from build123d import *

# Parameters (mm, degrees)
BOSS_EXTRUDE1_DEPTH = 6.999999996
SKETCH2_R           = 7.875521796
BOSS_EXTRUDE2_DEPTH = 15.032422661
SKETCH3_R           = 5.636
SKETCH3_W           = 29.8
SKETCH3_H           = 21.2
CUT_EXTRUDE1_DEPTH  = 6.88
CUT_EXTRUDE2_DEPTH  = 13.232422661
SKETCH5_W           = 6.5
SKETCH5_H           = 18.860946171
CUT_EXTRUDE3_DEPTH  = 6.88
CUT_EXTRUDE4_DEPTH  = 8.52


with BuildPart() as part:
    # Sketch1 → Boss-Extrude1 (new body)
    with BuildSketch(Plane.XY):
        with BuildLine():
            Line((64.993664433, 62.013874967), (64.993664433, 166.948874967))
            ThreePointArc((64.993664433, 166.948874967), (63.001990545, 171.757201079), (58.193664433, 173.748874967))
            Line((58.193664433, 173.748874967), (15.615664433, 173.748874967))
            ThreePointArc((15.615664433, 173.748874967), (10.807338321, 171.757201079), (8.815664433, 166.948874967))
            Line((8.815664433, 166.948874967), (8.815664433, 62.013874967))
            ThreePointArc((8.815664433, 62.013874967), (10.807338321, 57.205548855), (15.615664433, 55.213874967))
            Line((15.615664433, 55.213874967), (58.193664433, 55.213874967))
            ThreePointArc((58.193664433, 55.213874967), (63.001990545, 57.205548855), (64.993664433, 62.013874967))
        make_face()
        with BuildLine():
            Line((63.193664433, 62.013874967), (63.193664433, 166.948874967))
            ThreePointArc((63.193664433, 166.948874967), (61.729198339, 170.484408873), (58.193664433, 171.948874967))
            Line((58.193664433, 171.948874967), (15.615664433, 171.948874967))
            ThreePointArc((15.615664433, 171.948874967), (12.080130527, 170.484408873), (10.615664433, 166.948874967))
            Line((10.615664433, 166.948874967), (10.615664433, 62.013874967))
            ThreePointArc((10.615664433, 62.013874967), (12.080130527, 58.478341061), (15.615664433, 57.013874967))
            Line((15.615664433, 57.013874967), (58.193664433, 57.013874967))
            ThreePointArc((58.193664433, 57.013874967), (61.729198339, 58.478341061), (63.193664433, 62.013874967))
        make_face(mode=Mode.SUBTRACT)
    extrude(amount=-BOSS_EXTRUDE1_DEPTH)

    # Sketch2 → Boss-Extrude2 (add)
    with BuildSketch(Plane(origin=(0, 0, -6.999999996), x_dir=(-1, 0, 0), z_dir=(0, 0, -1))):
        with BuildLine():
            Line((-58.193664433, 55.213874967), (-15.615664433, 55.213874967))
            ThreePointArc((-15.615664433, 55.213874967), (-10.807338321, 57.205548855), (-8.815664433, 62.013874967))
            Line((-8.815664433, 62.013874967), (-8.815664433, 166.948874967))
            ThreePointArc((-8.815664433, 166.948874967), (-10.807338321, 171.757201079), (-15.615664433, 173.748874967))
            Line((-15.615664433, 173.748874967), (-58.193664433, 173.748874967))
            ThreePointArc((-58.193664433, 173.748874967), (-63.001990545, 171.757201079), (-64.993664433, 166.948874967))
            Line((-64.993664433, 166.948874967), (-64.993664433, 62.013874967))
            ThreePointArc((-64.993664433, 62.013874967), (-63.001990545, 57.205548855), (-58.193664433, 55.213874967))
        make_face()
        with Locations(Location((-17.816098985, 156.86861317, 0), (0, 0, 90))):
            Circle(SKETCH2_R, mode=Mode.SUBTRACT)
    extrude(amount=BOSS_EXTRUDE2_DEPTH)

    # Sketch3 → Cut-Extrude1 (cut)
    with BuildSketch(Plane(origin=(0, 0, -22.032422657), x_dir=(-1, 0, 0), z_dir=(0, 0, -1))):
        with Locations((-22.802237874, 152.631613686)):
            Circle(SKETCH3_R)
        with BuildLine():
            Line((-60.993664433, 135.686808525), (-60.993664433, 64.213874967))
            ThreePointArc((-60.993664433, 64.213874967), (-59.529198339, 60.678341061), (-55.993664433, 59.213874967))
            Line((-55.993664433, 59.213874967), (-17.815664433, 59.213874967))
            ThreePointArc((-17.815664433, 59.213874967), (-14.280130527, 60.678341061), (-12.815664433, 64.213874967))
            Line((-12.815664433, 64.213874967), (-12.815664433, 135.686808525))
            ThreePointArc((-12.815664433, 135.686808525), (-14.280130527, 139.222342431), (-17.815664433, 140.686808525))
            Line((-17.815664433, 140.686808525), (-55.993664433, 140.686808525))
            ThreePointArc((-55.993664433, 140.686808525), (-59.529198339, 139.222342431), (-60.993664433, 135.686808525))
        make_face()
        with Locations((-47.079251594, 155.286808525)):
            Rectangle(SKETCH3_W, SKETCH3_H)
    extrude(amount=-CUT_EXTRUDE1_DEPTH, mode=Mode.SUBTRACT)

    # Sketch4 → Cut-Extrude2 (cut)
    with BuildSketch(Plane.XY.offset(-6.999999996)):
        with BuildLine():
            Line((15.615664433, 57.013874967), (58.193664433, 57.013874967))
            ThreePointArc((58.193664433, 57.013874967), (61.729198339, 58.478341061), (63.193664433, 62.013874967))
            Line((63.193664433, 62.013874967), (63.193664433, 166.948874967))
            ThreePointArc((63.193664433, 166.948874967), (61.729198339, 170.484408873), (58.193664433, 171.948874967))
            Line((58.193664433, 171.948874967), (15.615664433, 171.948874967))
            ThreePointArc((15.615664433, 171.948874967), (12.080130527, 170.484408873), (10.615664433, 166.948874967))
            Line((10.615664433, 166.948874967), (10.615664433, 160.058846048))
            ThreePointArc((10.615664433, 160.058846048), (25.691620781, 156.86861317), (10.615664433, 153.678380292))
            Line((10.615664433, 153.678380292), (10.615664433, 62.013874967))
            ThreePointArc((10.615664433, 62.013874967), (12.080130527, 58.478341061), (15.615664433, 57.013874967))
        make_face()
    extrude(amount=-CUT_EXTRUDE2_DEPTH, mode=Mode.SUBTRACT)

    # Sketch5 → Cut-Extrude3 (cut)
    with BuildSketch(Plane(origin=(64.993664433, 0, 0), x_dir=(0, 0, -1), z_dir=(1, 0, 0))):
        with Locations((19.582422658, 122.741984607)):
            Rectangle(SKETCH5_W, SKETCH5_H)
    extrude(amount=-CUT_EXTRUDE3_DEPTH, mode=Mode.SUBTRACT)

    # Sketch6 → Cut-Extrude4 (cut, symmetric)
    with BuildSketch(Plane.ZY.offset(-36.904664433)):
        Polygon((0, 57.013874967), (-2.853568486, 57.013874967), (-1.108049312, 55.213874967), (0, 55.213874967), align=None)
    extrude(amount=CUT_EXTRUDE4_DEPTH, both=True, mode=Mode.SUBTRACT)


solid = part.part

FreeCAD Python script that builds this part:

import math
import FreeCAD as App
import Part
import Sketcher
from FreeCAD import Vector
Q = App.Units.Quantity


def add_polygon(sketch, points):
    """Adds a closed chain of lines whose ends are joined by coincident constraints."""
    first, n = sketch.GeometryCount, len(points)
    for a, b in zip(points, points[1:] + points[:1]):
        sketch.addGeometry(Part.LineSegment(App.Vector(*a, 0), App.Vector(*b, 0)), False)
    for i in range(n):
        sketch.addConstraint(Sketcher.Constraint("Coincident", first + i, 2, first + (i + 1) % n, 1))

doc = App.newDocument("Part")
body = doc.addObject("PartDesign::Body", "Body")

sketch1 = body.newObject("Sketcher::SketchObject", "Sketch")
sketch1.AttachmentSupport = (doc.getObject("XY_Plane"), [""])
sketch1.MapMode = "FlatFace"
sketch1.addGeometry(Part.LineSegment(Vector(65, 62, 0), Vector(65, 167, 0)), False)
sketch1.addGeometry(Part.ArcOfCircle(Part.Circle(Vector(58, 167, 0), Vector(0, 0, 1), 7), math.radians(0), math.radians(90)), False)
sketch1.addGeometry(Part.LineSegment(Vector(58, 174, 0), Vector(16, 174, 0)), False)
sketch1.addGeometry(Part.ArcOfCircle(Part.Circle(Vector(16, 167, 0), Vector(0, 0, 1), 7), math.radians(90), math.radians(180)), False)
sketch1.addGeometry(Part.LineSegment(Vector(9, 167, 0), Vector(9, 62, 0)), False)
sketch1.addGeometry(Part.ArcOfCircle(Part.Circle(Vector(16, 62, 0), Vector(0, 0, 1), 7), math.radians(180), math.radians(270)), False)
sketch1.addGeometry(Part.LineSegment(Vector(16, 55, 0), Vector(58, 55, 0)), False)
sketch1.addGeometry(Part.ArcOfCircle(Part.Circle(Vector(58, 62, 0), Vector(0, 0, 1), 7), math.radians(-90), math.radians(0)), False)
sketch1.addGeometry(Part.LineSegment(Vector(63, 167, 0), Vector(63, 62, 0)), False)
sketch1.addGeometry(Part.ArcOfCircle(Part.Circle(Vector(58, 62, 0), Vector(0, 0, 1), 5), math.radians(-90), math.radians(0)), False)
sketch1.addGeometry(Part.LineSegment(Vector(58, 57, 0), Vector(16, 57, 0)), False)
sketch1.addGeometry(Part.ArcOfCircle(Part.Circle(Vector(16, 62, 0), Vector(0, 0, 1), 5), math.radians(180), math.radians(270)), False)
sketch1.addGeometry(Part.LineSegment(Vector(11, 62, 0), Vector(11, 167, 0)), False)
sketch1.addGeometry(Part.ArcOfCircle(Part.Circle(Vector(16, 167, 0), Vector(0, 0, 1), 5), math.radians(90), math.radians(180)), False)
sketch1.addGeometry(Part.LineSegment(Vector(16, 172, 0), Vector(58, 172, 0)), False)
sketch1.addGeometry(Part.ArcOfCircle(Part.Circle(Vector(58, 167, 0), Vector(0, 0, 1), 5), math.radians(0), math.radians(90)), False)
sketch1.addConstraint(Sketcher.Constraint("Tangent", 0, 2, 1, 1))
sketch1.addConstraint(Sketcher.Constraint("Tangent", 1, 2, 2, 1))
sketch1.addConstraint(Sketcher.Constraint("Tangent", 2, 2, 3, 1))
sketch1.addConstraint(Sketcher.Constraint("Tangent", 3, 2, 4, 1))
sketch1.addConstraint(Sketcher.Constraint("Tangent", 4, 2, 5, 1))
sketch1.addConstraint(Sketcher.Constraint("Tangent", 5, 2, 6, 1))
sketch1.addConstraint(Sketcher.Constraint("Tangent", 6, 2, 7, 1))
sketch1.addConstraint(Sketcher.Constraint("Tangent", 7, 2, 0, 1))
sketch1.addConstraint(Sketcher.Constraint("Tangent", 8, 2, 9, 2))
sketch1.addConstraint(Sketcher.Constraint("Tangent", 9, 1, 10, 1))
sketch1.addConstraint(Sketcher.Constraint("Tangent", 10, 2, 11, 2))
sketch1.addConstraint(Sketcher.Constraint("Tangent", 11, 1, 12, 1))
sketch1.addConstraint(Sketcher.Constraint("Tangent", 12, 2, 13, 2))
sketch1.addConstraint(Sketcher.Constraint("Tangent", 13, 1, 14, 1))
sketch1.addConstraint(Sketcher.Constraint("Tangent", 14, 2, 15, 2))
sketch1.addConstraint(Sketcher.Constraint("Tangent", 15, 1, 8, 1))
sketch1.addConstraint(Sketcher.Constraint("Vertical", 0))
sketch1.addConstraint(Sketcher.Constraint("Horizontal", 2))
sketch1.addConstraint(Sketcher.Constraint("Vertical", 4))
sketch1.addConstraint(Sketcher.Constraint("Horizontal", 6))
sketch1.addConstraint(Sketcher.Constraint("Vertical", 8))
sketch1.addConstraint(Sketcher.Constraint("Horizontal", 10))
sketch1.addConstraint(Sketcher.Constraint("Vertical", 12))
sketch1.addConstraint(Sketcher.Constraint("Horizontal", 14))
sketch1.addConstraint(Sketcher.Constraint("Coincident", 9, 3, 7, 3))
sketch1.addConstraint(Sketcher.Constraint("Coincident", 11, 3, 5, 3))
sketch1.addConstraint(Sketcher.Constraint("Coincident", 13, 3, 3, 3))
sketch1.addConstraint(Sketcher.Constraint("Equal", 1, 3))
sketch1.addConstraint(Sketcher.Constraint("Equal", 3, 5))
sketch1.addConstraint(Sketcher.Constraint("Equal", 5, 7))
sketch1.addConstraint(Sketcher.Constraint("Equal", 13, 15))
sketch1.addConstraint(Sketcher.Constraint("Radius", 9, Q("5 mm")))
sketch1.addConstraint(Sketcher.Constraint("Radius", 1, Q("6.8 mm")))
sketch1.addConstraint(Sketcher.Constraint("DistanceX", 2, 2, 2, 1, Q("42.578 mm")))
sketch1.addConstraint(Sketcher.Constraint("DistanceY", 0, 1, 0, 2, Q("104.935 mm")))
sketch1.addConstraint(Sketcher.Constraint("DistanceX", -1, 1, 1, 3, Q("58.193664 mm")))
sketch1.addConstraint(Sketcher.Constraint("DistanceY", -1, 1, 1, 3, Q("166.948875 mm")))
pad1 = body.newObject("PartDesign::Pad", "Pad")
pad1.Profile = sketch1
pad1.Length = 7
pad1.Reversed = True

sketch2 = body.newObject("Sketcher::SketchObject", "Sketch001")
sketch2.AttachmentSupport = (doc.getObject("XY_Plane"), [""])
sketch2.MapMode = "FlatFace"
sketch2.AttachmentOffset = App.Placement(Vector(0, 0, -7), App.Rotation())
sketch2.addGeometry(Part.LineSegment(Vector(58, 55, 0), Vector(16, 55, 0)), False)
sketch2.addGeometry(Part.ArcOfCircle(Part.Circle(Vector(16, 62, 0), Vector(0, 0, 1), 7), math.radians(180), math.radians(270)), False)
sketch2.addGeometry(Part.LineSegment(Vector(9, 62, 0), Vector(9, 167, 0)), False)
sketch2.addGeometry(Part.ArcOfCircle(Part.Circle(Vector(16, 167, 0), Vector(0, 0, 1), 7), math.radians(90), math.radians(180)), False)
sketch2.addGeometry(Part.LineSegment(Vector(16, 174, 0), Vector(58, 174, 0)), False)
sketch2.addGeometry(Part.ArcOfCircle(Part.Circle(Vector(58, 167, 0), Vector(0, 0, 1), 7), math.radians(0), math.radians(90)), False)
sketch2.addGeometry(Part.LineSegment(Vector(65, 167, 0), Vector(65, 62, 0)), False)
sketch2.addGeometry(Part.ArcOfCircle(Part.Circle(Vector(58, 62, 0), Vector(0, 0, 1), 7), math.radians(-90), math.radians(0)), False)
sketch2.addGeometry(Part.Circle(Vector(18, 157, 0), Vector(0, 0, 1), 8), False)
sketch2.addConstraint(Sketcher.Constraint("Tangent", 0, 2, 1, 2))
sketch2.addConstraint(Sketcher.Constraint("Tangent", 1, 1, 2, 1))
sketch2.addConstraint(Sketcher.Constraint("Tangent", 2, 2, 3, 2))
sketch2.addConstraint(Sketcher.Constraint("Tangent", 3, 1, 4, 1))
sketch2.addConstraint(Sketcher.Constraint("Tangent", 4, 2, 5, 2))
sketch2.addConstraint(Sketcher.Constraint("Tangent", 5, 1, 6, 1))
sketch2.addConstraint(Sketcher.Constraint("Tangent", 6, 2, 7, 2))
sketch2.addConstraint(Sketcher.Constraint("Tangent", 7, 1, 0, 1))
sketch2.addConstraint(Sketcher.Constraint("Horizontal", 0))
sketch2.addConstraint(Sketcher.Constraint("Vertical", 2))
sketch2.addConstraint(Sketcher.Constraint("Horizontal", 4))
sketch2.addConstraint(Sketcher.Constraint("Vertical", 6))
sketch2.addConstraint(Sketcher.Constraint("Equal", 1, 3))
sketch2.addConstraint(Sketcher.Constraint("Equal", 3, 5))
sketch2.addConstraint(Sketcher.Constraint("Equal", 5, 7))
sketch2.addConstraint(Sketcher.Constraint("Radius", 1, Q("6.8 mm")))
sketch2.addConstraint(Sketcher.Constraint("DistanceX", 0, 2, 0, 1, Q("42.578 mm")))
sketch2.addConstraint(Sketcher.Constraint("DistanceY", 2, 1, 2, 2, Q("104.935 mm")))
sketch2.addConstraint(Sketcher.Constraint("Diameter", 8, Q("15.751044 mm")))
sketch2.addConstraint(Sketcher.Constraint("DistanceX", -1, 1, 8, 3, Q("17.816099 mm")))
sketch2.addConstraint(Sketcher.Constraint("DistanceY", 8, 3, 3, 3, Q("10.080262 mm")))
sketch2.addConstraint(Sketcher.Constraint("DistanceX", -1, 1, 1, 3, Q("15.615664 mm")))
sketch2.addConstraint(Sketcher.Constraint("DistanceY", -1, 1, 1, 3, Q("62.013875 mm")))
pad2 = body.newObject("PartDesign::Pad", "Pad001")
pad2.Profile = sketch2
pad2.Length = 15.032423
pad2.Reversed = True

sketch3 = body.newObject("Sketcher::SketchObject", "Sketch002")
sketch3.AttachmentSupport = (doc.getObject("XY_Plane"), [""])
sketch3.MapMode = "FlatFace"
sketch3.AttachmentOffset = App.Placement(Vector(0, 0, -22.032423), App.Rotation())
sketch3.addGeometry(Part.Circle(Vector(23, 153, 0), Vector(0, 0, 1), 6), False)
sketch3.addGeometry(Part.LineSegment(Vector(61, 136, 0), Vector(61, 64, 0)), False)
sketch3.addGeometry(Part.ArcOfCircle(Part.Circle(Vector(56, 64, 0), Vector(0, 0, 1), 5), math.radians(-90), math.radians(0)), False)
sketch3.addGeometry(Part.LineSegment(Vector(56, 59, 0), Vector(18, 59, 0)), False)
sketch3.addGeometry(Part.ArcOfCircle(Part.Circle(Vector(18, 64, 0), Vector(0, 0, 1), 5), math.radians(180), math.radians(270)), False)
sketch3.addGeometry(Part.LineSegment(Vector(13, 64, 0), Vector(13, 136, 0)), False)
sketch3.addGeometry(Part.ArcOfCircle(Part.Circle(Vector(18, 136, 0), Vector(0, 0, 1), 5), math.radians(90), math.radians(180)), False)
sketch3.addGeometry(Part.LineSegment(Vector(18, 141, 0), Vector(56, 141, 0)), False)
sketch3.addGeometry(Part.ArcOfCircle(Part.Circle(Vector(56, 136, 0), Vector(0, 0, 1), 5), math.radians(0), math.radians(90)), False)
add_polygon(sketch3, [(62, 166), (62, 145), (32, 145), (32, 166)])
sketch3.addConstraint(Sketcher.Constraint("Tangent", 1, 2, 2, 2))
sketch3.addConstraint(Sketcher.Constraint("Tangent", 2, 1, 3, 1))
sketch3.addConstraint(Sketcher.Constraint("Tangent", 3, 2, 4, 2))
sketch3.addConstraint(Sketcher.Constraint("Tangent", 4, 1, 5, 1))
sketch3.addConstraint(Sketcher.Constraint("Tangent", 5, 2, 6, 2))
sketch3.addConstraint(Sketcher.Constraint("Tangent", 6, 1, 7, 1))
sketch3.addConstraint(Sketcher.Constraint("Tangent", 7, 2, 8, 2))
sketch3.addConstraint(Sketcher.Constraint("Tangent", 8, 1, 1, 1))
sketch3.addConstraint(Sketcher.Constraint("Vertical", 1))
sketch3.addConstraint(Sketcher.Constraint("Horizontal", 3))
sketch3.addConstraint(Sketcher.Constraint("Vertical", 5))
sketch3.addConstraint(Sketcher.Constraint("Horizontal", 7))
sketch3.addConstraint(Sketcher.Constraint("Vertical", 9))
sketch3.addConstraint(Sketcher.Constraint("Horizontal", 10))
sketch3.addConstraint(Sketcher.Constraint("Vertical", 11))
sketch3.addConstraint(Sketcher.Constraint("Horizontal", 12))
sketch3.addConstraint(Sketcher.Constraint("Equal", 2, 4))
sketch3.addConstraint(Sketcher.Constraint("Equal", 4, 6))
sketch3.addConstraint(Sketcher.Constraint("Equal", 6, 8))
sketch3.addConstraint(Sketcher.Constraint("Radius", 2, Q("5 mm")))
sketch3.addConstraint(Sketcher.Constraint("Diameter", 0, Q("11.272 mm")))
sketch3.addConstraint(Sketcher.Constraint("DistanceX", 10, 2, 10, 1, Q("29.8 mm")))
sketch3.addConstraint(Sketcher.Constraint("DistanceY", 9, 2, 9, 1, Q("21.2 mm")))
sketch3.addConstraint(Sketcher.Constraint("DistanceY", 7, 2, 9, 2, Q("4 mm")))
sketch3.addConstraint(Sketcher.Constraint("DistanceX", 3, 2, 3, 1, Q("38.178 mm")))
sketch3.addConstraint(Sketcher.Constraint("DistanceY", 1, 2, 1, 1, Q("71.472934 mm")))
sketch3.addConstraint(Sketcher.Constraint("DistanceY", -1, 1, 6, 3, Q("135.686809 mm")))
sketch3.addConstraint(Sketcher.Constraint("DistanceX", -1, 1, 9, 2, Q("61.979252 mm")))
sketch3.addConstraint(Sketcher.Constraint("DistanceY", 2, 3, 0, 3, Q("88.417739 mm")))
sketch3.addConstraint(Sketcher.Constraint("DistanceX", -1, 1, 0, 3, Q("22.802238 mm")))
sketch3.addConstraint(Sketcher.Constraint("DistanceX", -1, 1, 2, 3, Q("55.993664 mm")))
pocket1 = body.newObject("PartDesign::Pocket", "Pocket")
pocket1.Profile = sketch3
pocket1.Length = 6.88
pocket1.Reversed = True

sketch4 = body.newObject("Sketcher::SketchObject", "Sketch003")
sketch4.AttachmentSupport = (doc.getObject("XY_Plane"), [""])
sketch4.MapMode = "FlatFace"
sketch4.AttachmentOffset = App.Placement(Vector(0, 0, -7), App.Rotation())
sketch4.addGeometry(Part.LineSegment(Vector(16, 57, 0), Vector(58, 57, 0)), False)
sketch4.addGeometry(Part.ArcOfCircle(Part.Circle(Vector(58, 62, 0), Vector(0, 0, 1), 5), math.radians(-90), math.radians(0)), False)
sketch4.addGeometry(Part.LineSegment(Vector(63, 62, 0), Vector(63, 167, 0)), False)
sketch4.addGeometry(Part.ArcOfCircle(Part.Circle(Vector(58, 167, 0), Vector(0, 0, 1), 5), math.radians(0), math.radians(90)), False)
sketch4.addGeometry(Part.LineSegment(Vector(58, 172, 0), Vector(16, 172, 0)), False)
sketch4.addGeometry(Part.ArcOfCircle(Part.Circle(Vector(16, 167, 0), Vector(0, 0, 1), 5), math.radians(90), math.radians(180)), False)
sketch4.addGeometry(Part.LineSegment(Vector(11, 167, 0), Vector(11, 160, 0)), False)
sketch4.addGeometry(Part.ArcOfCircle(Part.Circle(Vector(18, 157, 0), Vector(0, 0, 1), 8), math.radians(-156), math.radians(156)), False)
sketch4.addGeometry(Part.LineSegment(Vector(11, 154, 0), Vector(11, 62, 0)), False)
sketch4.addGeometry(Part.ArcOfCircle(Part.Circle(Vector(16, 62, 0), Vector(0, 0, 1), 5), math.radians(180), math.radians(270)), False)
sketch4.addConstraint(Sketcher.Constraint("Tangent", 0, 2, 1, 1))
sketch4.addConstraint(Sketcher.Constraint("Tangent", 1, 2, 2, 1))
sketch4.addConstraint(Sketcher.Constraint("Tangent", 2, 2, 3, 1))
sketch4.addConstraint(Sketcher.Constraint("Tangent", 3, 2, 4, 1))
sketch4.addConstraint(Sketcher.Constraint("Tangent", 4, 2, 5, 1))
sketch4.addConstraint(Sketcher.Constraint("Tangent", 5, 2, 6, 1))
sketch4.addConstraint(Sketcher.Constraint("Coincident", 6, 2, 7, 2))
sketch4.addConstraint(Sketcher.Constraint("Coincident", 7, 1, 8, 1))
sketch4.addConstraint(Sketcher.Constraint("Tangent", 8, 2, 9, 1))
sketch4.addConstraint(Sketcher.Constraint("Tangent", 9, 2, 0, 1))
sketch4.addConstraint(Sketcher.Constraint("Horizontal", 0))
sketch4.addConstraint(Sketcher.Constraint("Vertical", 2))
sketch4.addConstraint(Sketcher.Constraint("Horizontal", 4))
sketch4.addConstraint(Sketcher.Constraint("Vertical", 6))
sketch4.addConstraint(Sketcher.Constraint("Vertical", 8))
sketch4.addConstraint(Sketcher.Constraint("Equal", 1, 3))
sketch4.addConstraint(Sketcher.Constraint("Equal", 3, 5))
sketch4.addConstraint(Sketcher.Constraint("Equal", 5, 9))
sketch4.addConstraint(Sketcher.Constraint("Vertical", 5, 3, 9, 3))
sketch4.addConstraint(Sketcher.Constraint("Radius", 1, Q("5 mm")))
sketch4.addConstraint(Sketcher.Constraint("DistanceX", 0, 1, 0, 2, Q("42.578 mm")))
sketch4.addConstraint(Sketcher.Constraint("DistanceY", 2, 1, 2, 2, Q("104.935 mm")))
sketch4.addConstraint(Sketcher.Constraint("Radius", 7, Q("7.875522 mm")))
sketch4.addConstraint(Sketcher.Constraint("DistanceY", 6, 2, 6, 1, Q("6.890029 mm")))
sketch4.addConstraint(Sketcher.Constraint("DistanceX", -1, 1, 7, 3, Q("17.816099 mm")))
sketch4.addConstraint(Sketcher.Constraint("DistanceY", 8, 2, 8, 1, Q("91.664505 mm")))
sketch4.addConstraint(Sketcher.Constraint("DistanceY", -1, 1, 7, 1, Q("153.67838 mm")))
pocket2 = body.newObject("PartDesign::Pocket", "Pocket001")
pocket2.Profile = sketch4
pocket2.Length = 13.232423

sketch5 = body.newObject("Sketcher::SketchObject", "Sketch004")
sketch5.AttachmentSupport = (doc.getObject("YZ_Plane"), [""])
sketch5.MapMode = "FlatFace"
sketch5.AttachmentOffset = App.Placement(Vector(0, 0, 64.993664), App.Rotation())
add_polygon(sketch5, [(132, -16), (113, -16), (113, -23), (132, -23)])
sketch5.addConstraint(Sketcher.Constraint("Horizontal", 0))
sketch5.addConstraint(Sketcher.Constraint("Vertical", 1))
sketch5.addConstraint(Sketcher.Constraint("Horizontal", 2))
sketch5.addConstraint(Sketcher.Constraint("Vertical", 3))
sketch5.addConstraint(Sketcher.Constraint("DistanceY", 1, 2, 1, 1, Q("6.5 mm")))
sketch5.addConstraint(Sketcher.Constraint("DistanceX", 0, 2, 0, 1, Q("18.860946 mm")))
sketch5.addConstraint(Sketcher.Constraint("DistanceX", -1, 1, 0, 2, Q("113.311512 mm")))
sketch5.addConstraint(Sketcher.Constraint("DistanceY", 0, 2, -1, 1, Q("16.332423 mm")))
pocket3 = body.newObject("PartDesign::Pocket", "Pocket002")
pocket3.Profile = sketch5
pocket3.Length = 6.88

sketch6 = body.newObject("Sketcher::SketchObject", "Sketch005")
sketch6.AttachmentSupport = (doc.getObject("YZ_Plane"), [""])
sketch6.MapMode = "FlatFace"
sketch6.AttachmentOffset = App.Placement(Vector(0, 0, 36.904664), App.Rotation())
add_polygon(sketch6, [(57, 0), (57, -2.9), (55.2, -1.1), (55.2, 0)])
sketch6.addConstraint(Sketcher.Constraint("Vertical", 0))
sketch6.addConstraint(Sketcher.Constraint("Vertical", 2))
sketch6.addConstraint(Sketcher.Constraint("Horizontal", 3))
sketch6.addConstraint(Sketcher.Constraint("PointOnObject", 2, 2, -1))
sketch6.addConstraint(Sketcher.Constraint("DistanceX", 3, 1, 3, 2, Q("1.8 mm")))
sketch6.addConstraint(Sketcher.Constraint("DistanceY", 0, 2, 0, 1, Q("2.853568 mm")))
sketch6.addConstraint(Sketcher.Constraint("DistanceY", 2, 1, 2, 2, Q("1.108049 mm")))
sketch6.addConstraint(Sketcher.Constraint("DistanceX", -1, 1, 0, 2, Q("57.013875 mm")))
pocket4 = body.newObject("PartDesign::Pocket", "Pocket003")
pocket4.Profile = sketch6
pocket4.Length = 17.04
pocket4.Midplane = True

doc.recompute()
